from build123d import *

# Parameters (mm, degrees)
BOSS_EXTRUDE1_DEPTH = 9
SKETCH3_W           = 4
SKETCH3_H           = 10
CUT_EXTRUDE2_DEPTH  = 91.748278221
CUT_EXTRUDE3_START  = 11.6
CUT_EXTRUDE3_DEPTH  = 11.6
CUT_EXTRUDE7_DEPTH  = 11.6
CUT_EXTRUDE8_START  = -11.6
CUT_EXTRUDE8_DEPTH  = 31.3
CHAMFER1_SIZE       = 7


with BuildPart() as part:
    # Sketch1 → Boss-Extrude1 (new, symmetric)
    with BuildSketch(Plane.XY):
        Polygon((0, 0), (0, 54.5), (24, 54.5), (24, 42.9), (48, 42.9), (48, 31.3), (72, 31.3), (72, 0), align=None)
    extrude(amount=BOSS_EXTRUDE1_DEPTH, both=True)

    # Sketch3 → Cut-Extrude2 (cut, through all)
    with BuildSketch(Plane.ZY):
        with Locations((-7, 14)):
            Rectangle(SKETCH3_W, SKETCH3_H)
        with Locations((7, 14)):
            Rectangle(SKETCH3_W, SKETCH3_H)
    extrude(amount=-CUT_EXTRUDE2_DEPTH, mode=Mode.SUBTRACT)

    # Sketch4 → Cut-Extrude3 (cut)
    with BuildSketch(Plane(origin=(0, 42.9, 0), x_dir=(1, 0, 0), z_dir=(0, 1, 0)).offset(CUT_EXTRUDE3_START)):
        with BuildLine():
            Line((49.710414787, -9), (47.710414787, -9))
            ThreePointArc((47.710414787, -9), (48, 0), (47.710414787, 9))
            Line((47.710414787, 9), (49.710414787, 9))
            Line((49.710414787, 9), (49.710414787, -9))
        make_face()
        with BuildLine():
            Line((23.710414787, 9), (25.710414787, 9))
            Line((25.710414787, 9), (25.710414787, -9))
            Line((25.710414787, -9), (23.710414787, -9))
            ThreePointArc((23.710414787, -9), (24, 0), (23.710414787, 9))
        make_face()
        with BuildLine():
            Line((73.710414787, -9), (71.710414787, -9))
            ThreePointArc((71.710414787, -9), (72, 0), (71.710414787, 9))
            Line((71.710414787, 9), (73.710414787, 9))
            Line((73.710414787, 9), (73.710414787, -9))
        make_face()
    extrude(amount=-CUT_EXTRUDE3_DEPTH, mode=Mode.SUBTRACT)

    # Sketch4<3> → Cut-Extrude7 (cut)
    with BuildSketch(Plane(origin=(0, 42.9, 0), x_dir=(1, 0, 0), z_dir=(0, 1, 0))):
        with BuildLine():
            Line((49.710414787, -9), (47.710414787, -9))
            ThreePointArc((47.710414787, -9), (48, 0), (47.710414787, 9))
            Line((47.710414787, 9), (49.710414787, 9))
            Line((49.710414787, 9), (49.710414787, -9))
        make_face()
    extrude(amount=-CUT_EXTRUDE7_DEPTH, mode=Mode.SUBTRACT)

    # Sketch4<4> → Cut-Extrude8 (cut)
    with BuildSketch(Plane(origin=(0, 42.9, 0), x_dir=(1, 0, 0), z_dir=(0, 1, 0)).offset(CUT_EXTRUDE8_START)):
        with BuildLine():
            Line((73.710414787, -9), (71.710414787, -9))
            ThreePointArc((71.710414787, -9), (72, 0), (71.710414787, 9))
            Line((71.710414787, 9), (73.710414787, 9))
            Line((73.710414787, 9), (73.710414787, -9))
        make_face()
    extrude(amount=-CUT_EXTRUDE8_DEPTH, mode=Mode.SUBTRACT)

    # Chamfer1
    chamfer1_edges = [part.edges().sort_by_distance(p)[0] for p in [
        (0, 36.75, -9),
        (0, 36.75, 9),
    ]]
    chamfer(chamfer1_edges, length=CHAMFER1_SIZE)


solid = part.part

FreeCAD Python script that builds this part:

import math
import FreeCAD as App
import Part
import Sketcher

V = App.Vector


def edges_at(feature, points):
    """Names of the edges that pass closest to the given points."""
    edges = feature.Shape.Edges
    near = lambda p: min(range(len(edges)), key=lambda i: edges[i].distToShape(Part.Vertex(*p))[0])
    return sorted({f"Edge{near(p) + 1}" for p in points})


def add_polygon(sketch, points):
    """Adds a closed chain of lines whose ends are joined by coincident constraints."""
    first, n = sketch.GeometryCount, len(points)
    for a, b in zip(points, points[1:] + points[:1]):
        sketch.addGeometry(Part.LineSegment(App.Vector(*a, 0), App.Vector(*b, 0)), False)
    for i in range(n):
        sketch.addConstraint(Sketcher.Constraint("Coincident", first + i, 2, first + (i + 1) % n, 1))

doc = App.newDocument("Part")
body = doc.addObject("PartDesign::Body", "Body")

sketch1 = body.newObject("Sketcher::SketchObject", "Sketch")
sketch1.AttachmentSupport = (doc.getObject("XY_Plane"), [""])
sketch1.MapMode = "FlatFace"
add_polygon(sketch1, [(0, 54.5), (0, 0), (72, 0), (72, 31.3), (48, 31.3), (48, 42.9), (24, 42.9), (24, 54.5)])
sketch1.addConstraint([
    Sketcher.Constraint("Vertical", 0),
    Sketcher.Constraint("Horizontal", 1),
    Sketcher.Constraint("Vertical", 2),
    Sketcher.Constraint("Horizontal", 3),
    Sketcher.Constraint("Vertical", 4),
    Sketcher.Constraint("Horizontal", 5),
    Sketcher.Constraint("Vertical", 6),
    Sketcher.Constraint("Horizontal", 7),
    Sketcher.Constraint("Coincident", 0, 2, -1, 1),
    Sketcher.Constraint("Equal", 3, 5),
    Sketcher.Constraint("Equal", 5, 7),
    Sketcher.Constraint("Equal", 4, 6),
    Sketcher.Constraint("DistanceX", 1, 1, 1, 2, 72.0),
    Sketcher.Constraint("DistanceY", 0, 2, 0, 1, 54.5),
    Sketcher.Constraint("DistanceY", 2, 1, 2, 2, 31.3),
])
pad1 = body.newObject("PartDesign::Pad", "Pad")
pad1.Profile = sketch1
pad1.Length = 18
pad1.Midplane = True

sketch2 = body.newObject("Sketcher::SketchObject", "Sketch001")
sketch2.AttachmentSupport = (doc.getObject("YZ_Plane"), [""])
sketch2.MapMode = "FlatFace"
add_polygon(sketch2, [(19, -9), (9, -9), (9, -5), (19, -5)])
add_polygon(sketch2, [(19, 5), (9, 5), (9, 9), (19, 9)])
sketch2.addConstraint([
    Sketcher.Constraint("Horizontal", 0),
    Sketcher.Constraint("Vertical", 1),
    Sketcher.Constraint("Horizontal", 2),
    Sketcher.Constraint("Vertical", 3),
    Sketcher.Constraint("Horizontal", 4),
    Sketcher.Constraint("Vertical", 5),
    Sketcher.Constraint("Horizontal", 6),
    Sketcher.Constraint("Vertical", 7),
    Sketcher.Constraint("Symmetric", 1, 2, 4, 2, -1),
    Sketcher.Constraint("Symmetric", 3, 2, 6, 2, -1),
    Sketcher.Constraint("DistanceX", 0, 2, 0, 1, 10.0),
    Sketcher.Constraint("DistanceY", 1, 1, 1, 2, 4.0),
    Sketcher.Constraint("DistanceX", -1, 1, 0, 2, 9.0),
    Sketcher.Constraint("DistanceY", 0, 2, -1, 1, 9.0),
])
pocket1 = body.newObject("PartDesign::Pocket", "Pocket")
pocket1.Profile = sketch2
pocket1.Type = "ThroughAll"
pocket1.Reversed = True

sketch3 = body.newObject("Sketcher::SketchObject", "Sketch002")
sketch3.AttachmentSupport = (doc.getObject("XZ_Plane"), [""])
sketch3.MapMode = "FlatFace"
sketch3.AttachmentOffset = App.Placement(V(0, 0, -54.5), App.Rotation())
sketch3.addGeometry([
    Part.LineSegment(V(47.710415, 9, 0), V(49.710415, 9, 0)),
    Part.LineSegment(V(49.710415, 9, 0), V(49.710415, -9, 0)),
    Part.LineSegment(V(49.710415, -9, 0), V(47.710415, -9, 0)),
    Part.ArcOfCircle(Part.Circle(V(-92, 0, 0), V(0, 0, 1), 140), math.radians(-3.685842), math.radians(3.685842)),
    Part.LineSegment(V(25.710415, -9, 0), V(23.710415, -9, 0)),
    Part.ArcOfCircle(Part.Circle(V(-116, 0, 0), V(0, 0, 1), 140), math.radians(-3.685842), math.radians(3.685842)),
    Part.LineSegment(V(23.710415, 9, 0), V(25.710415, 9, 0)),
    Part.LineSegment(V(25.710415, 9, 0), V(25.710415, -9, 0)),
    Part.LineSegment(V(71.710415, 9, 0), V(73.710415, 9, 0)),
    Part.LineSegment(V(73.710415, 9, 0), V(73.710415, -9, 0)),
    Part.LineSegment(V(73.710415, -9, 0), V(71.710415, -9, 0)),
    Part.ArcOfCircle(Part.Circle(V(-68, 0, 0), V(0, 0, 1), 140), math.radians(-3.685842), math.radians(3.685842)),
], False)
sketch3.addConstraint([
    Sketcher.Constraint("Coincident", 0, 2, 1, 1),
    Sketcher.Constraint("Coincident", 1, 2, 2, 1),
    Sketcher.Constraint("Coincident", 2, 2, 3, 1),
    Sketcher.Constraint("Coincident", 3, 2, 0, 1),
    Sketcher.Constraint("Coincident", 4, 2, 5, 1),
    Sketcher.Constraint("Coincident", 5, 2, 6, 1),
    Sketcher.Constraint("Coincident", 6, 2, 7, 1),
    Sketcher.Constraint("Coincident", 7, 2, 4, 1),
    Sketcher.Constraint("Coincident", 8, 2, 9, 1),
    Sketcher.Constraint("Coincident", 9, 2, 10, 1),
    Sketcher.Constraint("Coincident", 10, 2, 11, 1),
    Sketcher.Constraint("Coincident", 11, 2, 8, 1),
    Sketcher.Constraint("Horizontal", 0),
    Sketcher.Constraint("Vertical", 1),
    Sketcher.Constraint("Horizontal", 2),
    Sketcher.Constraint("Horizontal", 4),
    Sketcher.Constraint("Horizontal", 6),
    Sketcher.Constraint("Vertical", 7),
    Sketcher.Constraint("Horizontal", 8),
    Sketcher.Constraint("Vertical", 9),
    Sketcher.Constraint("Horizontal", 10),
    Sketcher.Constraint("Equal", 3, 5),
    Sketcher.Constraint("Equal", 5, 11),
    Sketcher.Constraint("Symmetric", 2, 2, 3, 2, -1),
    Sketcher.Constraint("Symmetric", 4, 2, 5, 2, -1),
    Sketcher.Constraint("Symmetric", 10, 2, 11, 2, -1),
    Sketcher.Constraint("Horizontal", 2, 2, 4, 2),
    Sketcher.Constraint("Horizontal", 6, 2, 8, 2),
    Sketcher.Constraint("Equal", 2, 4),
    Sketcher.Constraint("Equal", 6, 8),
    Sketcher.Constraint("Radius", 3, 140.0),
    Sketcher.Constraint("DistanceX", 0, 1, 0, 2, 2.0),
    Sketcher.Constraint("DistanceY", 1, 2, 1, 1, 18.0),
    Sketcher.Constraint("DistanceX", 3, 3, -1, 1, 92.0),
    Sketcher.Constraint("DistanceX", 5, 3, -1, 1, 116.0),
    Sketcher.Constraint("DistanceX", 11, 3, -1, 1, 68.0),
])
pocket2 = body.newObject("PartDesign::Pocket", "Pocket001")
pocket2.Profile = sketch3
pocket2.Length = 11.6
pocket2.Reversed = True

sketch4 = body.newObject("Sketcher::SketchObject", "Sketch003")
sketch4.AttachmentSupport = (doc.getObject("XZ_Plane"), [""])
sketch4.MapMode = "FlatFace"
sketch4.AttachmentOffset = App.Placement(V(0, 0, -42.9), App.Rotation())
sketch4.addGeometry([
    Part.LineSegment(V(47.710415, 9, 0), V(49.710415, 9, 0)),
    Part.LineSegment(V(49.710415, 9, 0), V(49.710415, -9, 0)),
    Part.LineSegment(V(49.710415, -9, 0), V(47.710415, -9, 0)),
    Part.ArcOfCircle(Part.Circle(V(-92, 0, 0), V(0, 0, 1), 140), math.radians(-3.685842), math.radians(3.685842)),
], False)
sketch4.addConstraint([
    Sketcher.Constraint("Coincident", 0, 2, 1, 1),
    Sketcher.Constraint("Coincident", 1, 2, 2, 1),
    Sketcher.Constraint("Coincident", 2, 2, 3, 1),
    Sketcher.Constraint("Coincident", 3, 2, 0, 1),
    Sketcher.Constraint("Horizontal", 0),
    Sketcher.Constraint("Vertical", 1),
    Sketcher.Constraint("Horizontal", 2),
    Sketcher.Constraint("Symmetric", 2, 2, 3, 2, -1),
    Sketcher.Constraint("Radius", 3, 140.0),
    Sketcher.Constraint("DistanceX", 0, 1, 0, 2, 2.0),
    Sketcher.Constraint("DistanceY", 1, 2, 1, 1, 18.0),
    Sketcher.Constraint("DistanceX", 3, 3, -1, 1, 92.0),
])
pocket3 = body.newObject("PartDesign::Pocket", "Pocket002")
pocket3.Profile = sketch4
pocket3.Length = 11.6
pocket3.Reversed = True

sketch5 = body.newObject("Sketcher::SketchObject", "Sketch004")
sketch5.AttachmentSupport = (doc.getObject("XZ_Plane"), [""])
sketch5.MapMode = "FlatFace"
sketch5.AttachmentOffset = App.Placement(V(0, 0, -31.3), App.Rotation())
sketch5.addGeometry([
    Part.LineSegment(V(71.710415, 9, 0), V(73.710415, 9, 0)),
    Part.LineSegment(V(73.710415, 9, 0), V(73.710415, -9, 0)),
    Part.LineSegment(V(73.710415, -9, 0), V(71.710415, -9, 0)),
    Part.ArcOfCircle(Part.Circle(V(-68, 0, 0), V(0, 0, 1), 140), math.radians(-3.685842), math.radians(3.685842)),
], False)
sketch5.addConstraint([
    Sketcher.Constraint("Coincident", 0, 2, 1, 1),
    Sketcher.Constraint("Coincident", 1, 2, 2, 1),
    Sketcher.Constraint("Coincident", 2, 2, 3, 1),
    Sketcher.Constraint("Coincident", 3, 2, 0, 1),
    Sketcher.Constraint("Horizontal", 0),
    Sketcher.Constraint("Vertical", 1),
    Sketcher.Constraint("Horizontal", 2),
    Sketcher.Constraint("Symmetric", 2, 2, 3, 2, -1),
    Sketcher.Constraint("Radius", 3, 140.0),
    Sketcher.Constraint("DistanceX", 0, 1, 0, 2, 2.0),
    Sketcher.Constraint("DistanceY", 1, 2, 1, 1, 18.0),
    Sketcher.Constraint("DistanceX", 3, 3, -1, 1, 68.0),
])
pocket4 = body.newObject("PartDesign::Pocket", "Pocket003")
pocket4.Profile = sketch5
pocket4.Length = 31.3
pocket4.Reversed = True
doc.recompute()

chamfer = body.newObject("PartDesign::Chamfer", "Chamfer")
chamfer.Base = (pocket4, edges_at(pocket4, [(0, 36.75, -9), (0, 36.75, 9)]))
chamfer.Size = 7

doc.recompute()
